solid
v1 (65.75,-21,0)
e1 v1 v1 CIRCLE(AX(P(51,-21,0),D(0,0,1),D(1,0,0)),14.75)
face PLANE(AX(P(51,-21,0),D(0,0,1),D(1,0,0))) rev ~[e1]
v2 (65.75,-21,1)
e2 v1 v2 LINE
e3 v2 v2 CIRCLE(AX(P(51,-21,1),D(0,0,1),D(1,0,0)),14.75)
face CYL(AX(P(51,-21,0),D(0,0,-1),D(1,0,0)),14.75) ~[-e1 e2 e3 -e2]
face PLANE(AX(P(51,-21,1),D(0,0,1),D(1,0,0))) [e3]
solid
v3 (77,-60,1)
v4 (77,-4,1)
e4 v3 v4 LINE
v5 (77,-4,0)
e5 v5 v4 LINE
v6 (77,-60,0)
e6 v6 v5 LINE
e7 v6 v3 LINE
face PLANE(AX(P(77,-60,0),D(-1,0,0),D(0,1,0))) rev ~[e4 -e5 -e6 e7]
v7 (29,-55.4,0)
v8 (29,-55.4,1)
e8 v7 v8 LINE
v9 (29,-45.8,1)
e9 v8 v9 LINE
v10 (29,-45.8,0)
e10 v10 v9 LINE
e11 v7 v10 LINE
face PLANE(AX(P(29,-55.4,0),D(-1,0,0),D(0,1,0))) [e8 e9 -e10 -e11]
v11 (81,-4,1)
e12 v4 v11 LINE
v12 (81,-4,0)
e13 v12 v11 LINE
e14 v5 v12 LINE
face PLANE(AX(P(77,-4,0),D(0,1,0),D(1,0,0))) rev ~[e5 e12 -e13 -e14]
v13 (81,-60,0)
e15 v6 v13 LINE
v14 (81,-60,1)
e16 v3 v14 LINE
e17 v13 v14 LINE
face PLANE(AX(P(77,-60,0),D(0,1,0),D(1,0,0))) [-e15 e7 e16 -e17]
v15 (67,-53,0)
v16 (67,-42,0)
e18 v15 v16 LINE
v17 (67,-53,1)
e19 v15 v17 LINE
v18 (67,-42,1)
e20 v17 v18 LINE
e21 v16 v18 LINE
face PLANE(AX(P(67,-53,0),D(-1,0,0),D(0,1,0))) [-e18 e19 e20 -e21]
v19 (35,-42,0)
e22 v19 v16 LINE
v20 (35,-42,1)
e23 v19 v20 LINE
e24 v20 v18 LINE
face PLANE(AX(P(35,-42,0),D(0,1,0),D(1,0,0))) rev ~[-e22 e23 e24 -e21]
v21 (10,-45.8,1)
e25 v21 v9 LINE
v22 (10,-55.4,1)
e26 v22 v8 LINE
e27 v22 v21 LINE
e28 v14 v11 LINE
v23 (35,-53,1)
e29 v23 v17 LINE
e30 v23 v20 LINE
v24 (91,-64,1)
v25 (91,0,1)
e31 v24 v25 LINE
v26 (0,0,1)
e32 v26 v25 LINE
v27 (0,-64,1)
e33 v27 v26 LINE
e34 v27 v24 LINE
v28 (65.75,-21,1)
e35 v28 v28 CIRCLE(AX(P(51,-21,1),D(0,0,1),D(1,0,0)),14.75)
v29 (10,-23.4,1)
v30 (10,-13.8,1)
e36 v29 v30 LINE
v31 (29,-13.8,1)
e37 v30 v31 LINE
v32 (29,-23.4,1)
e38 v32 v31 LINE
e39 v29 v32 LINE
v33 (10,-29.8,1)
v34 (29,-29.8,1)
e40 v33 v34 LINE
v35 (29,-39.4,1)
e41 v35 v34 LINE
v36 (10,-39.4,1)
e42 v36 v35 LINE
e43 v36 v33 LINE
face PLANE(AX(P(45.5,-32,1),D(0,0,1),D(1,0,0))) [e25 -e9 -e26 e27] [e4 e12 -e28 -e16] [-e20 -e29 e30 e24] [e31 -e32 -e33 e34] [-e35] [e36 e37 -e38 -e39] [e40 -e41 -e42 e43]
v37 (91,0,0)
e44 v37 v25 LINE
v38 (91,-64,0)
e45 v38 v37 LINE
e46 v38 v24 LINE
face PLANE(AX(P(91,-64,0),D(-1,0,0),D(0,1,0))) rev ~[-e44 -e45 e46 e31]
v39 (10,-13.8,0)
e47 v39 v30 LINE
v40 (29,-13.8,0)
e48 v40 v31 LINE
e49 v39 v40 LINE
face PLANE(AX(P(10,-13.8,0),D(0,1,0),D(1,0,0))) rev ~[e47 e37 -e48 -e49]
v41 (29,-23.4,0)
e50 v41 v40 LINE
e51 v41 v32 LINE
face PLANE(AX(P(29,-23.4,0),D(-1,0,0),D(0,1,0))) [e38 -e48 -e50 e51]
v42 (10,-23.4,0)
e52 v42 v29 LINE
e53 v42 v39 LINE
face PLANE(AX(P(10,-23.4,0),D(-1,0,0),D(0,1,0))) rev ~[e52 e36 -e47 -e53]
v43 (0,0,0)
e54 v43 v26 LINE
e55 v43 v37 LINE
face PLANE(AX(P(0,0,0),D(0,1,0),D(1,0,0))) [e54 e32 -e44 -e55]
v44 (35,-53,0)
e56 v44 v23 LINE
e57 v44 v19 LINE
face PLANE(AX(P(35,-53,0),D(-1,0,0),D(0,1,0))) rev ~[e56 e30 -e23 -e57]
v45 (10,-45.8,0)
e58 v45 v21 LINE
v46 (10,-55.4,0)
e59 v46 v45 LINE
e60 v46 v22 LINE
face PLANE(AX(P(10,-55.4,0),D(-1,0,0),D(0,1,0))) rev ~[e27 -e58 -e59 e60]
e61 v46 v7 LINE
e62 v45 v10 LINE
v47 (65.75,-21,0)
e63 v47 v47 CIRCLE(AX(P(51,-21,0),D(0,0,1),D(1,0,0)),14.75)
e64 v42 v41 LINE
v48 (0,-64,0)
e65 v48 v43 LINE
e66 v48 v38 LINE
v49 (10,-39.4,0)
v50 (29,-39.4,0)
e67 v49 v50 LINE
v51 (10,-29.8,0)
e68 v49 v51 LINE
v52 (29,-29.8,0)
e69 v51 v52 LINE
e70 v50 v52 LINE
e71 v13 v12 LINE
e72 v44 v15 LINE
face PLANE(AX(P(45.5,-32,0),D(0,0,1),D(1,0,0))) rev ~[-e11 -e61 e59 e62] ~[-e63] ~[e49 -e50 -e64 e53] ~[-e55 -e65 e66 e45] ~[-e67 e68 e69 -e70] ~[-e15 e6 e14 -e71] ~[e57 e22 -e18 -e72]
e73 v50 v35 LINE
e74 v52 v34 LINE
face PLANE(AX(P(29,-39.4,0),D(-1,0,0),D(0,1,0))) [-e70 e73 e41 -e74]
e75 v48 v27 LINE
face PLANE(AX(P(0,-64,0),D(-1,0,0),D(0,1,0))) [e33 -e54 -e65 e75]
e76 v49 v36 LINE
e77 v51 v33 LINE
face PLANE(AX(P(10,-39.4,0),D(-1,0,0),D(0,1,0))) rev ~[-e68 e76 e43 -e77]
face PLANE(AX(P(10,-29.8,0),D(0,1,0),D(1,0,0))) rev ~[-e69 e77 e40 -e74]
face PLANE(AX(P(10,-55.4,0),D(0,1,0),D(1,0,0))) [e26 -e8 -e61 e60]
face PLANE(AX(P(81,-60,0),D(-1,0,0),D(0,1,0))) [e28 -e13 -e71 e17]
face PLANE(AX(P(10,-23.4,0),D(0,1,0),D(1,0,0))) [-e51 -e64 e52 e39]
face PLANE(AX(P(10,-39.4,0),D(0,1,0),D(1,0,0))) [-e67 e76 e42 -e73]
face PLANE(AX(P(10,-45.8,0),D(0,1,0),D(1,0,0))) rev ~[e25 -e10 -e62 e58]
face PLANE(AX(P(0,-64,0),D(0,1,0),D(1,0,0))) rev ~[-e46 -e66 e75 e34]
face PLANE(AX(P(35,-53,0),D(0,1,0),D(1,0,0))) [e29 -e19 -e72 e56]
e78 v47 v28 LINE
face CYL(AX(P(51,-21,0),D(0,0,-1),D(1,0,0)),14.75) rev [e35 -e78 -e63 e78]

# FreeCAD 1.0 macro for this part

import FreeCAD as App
import Part
import Sketcher

V = App.Vector
Q = App.Units.Quantity


def add_polygon(sketch, points):
    """Adds a closed chain of lines whose ends are joined by coincident constraints."""
    first, n = sketch.GeometryCount, len(points)
    for a, b in zip(points, points[1:] + points[:1]):
        sketch.addGeometry(Part.LineSegment(App.Vector(*a, 0), App.Vector(*b, 0)), False)
    for i in range(n):
        sketch.addConstraint(Sketcher.Constraint("Coincident", first + i, 2, first + (i + 1) % n, 1))

doc = App.newDocument("Part")
body = doc.addObject("PartDesign::Body", "Body")

# Sketch on XY plane
sketch1 = body.newObject("Sketcher::SketchObject", "Sketch")
sketch1.AttachmentSupport = (doc.getObject("XY_Plane"), [""])
sketch1.MapMode = "FlatFace"
sketch1.addGeometry(Part.Circle(V(51, -21, 0), V(0, 0, 1), 14.75), False)
sketch1.addConstraint([
    Sketcher.Constraint("Diameter", 0, Q("29.5 mm")),
    Sketcher.Constraint("DistanceX", -1, 1, 0, 3, Q("51 mm")),
    Sketcher.Constraint("DistanceY", 0, 3, -1, 1, Q("21 mm")),
])
pad1 = body.newObject("PartDesign::Pad", "Pad")
pad1.Profile = sketch1
pad1.Length = 1
body2 = doc.addObject("PartDesign::Body", "Body001")

# Sketch on XY plane
sketch2 = body2.newObject("Sketcher::SketchObject", "Sketch001")
sketch2.AttachmentSupport = (doc.getObject("XY_Plane001"), [""])
sketch2.MapMode = "FlatFace"
add_polygon(sketch2, [(0, 0), (0, -64), (91, -64), (91, 0)])  # lines 0-3
add_polygon(sketch2, [(29, -55.4), (10, -55.4), (10, -45.8), (29, -45.8)])  # lines 4-7
add_polygon(sketch2, [(29, -39.4), (10, -39.4), (10, -29.8), (29, -29.8)])  # lines 8-11
add_polygon(sketch2, [(67, -53), (35, -53), (35, -42), (67, -42)])  # lines 12-15
add_polygon(sketch2, [(29, -23.4), (10, -23.4), (10, -13.8), (29, -13.8)])  # lines 16-19
sketch2.addGeometry(Part.Circle(V(51, -21, 0), V(0, 0, 1), 14.75), False)  # 20
add_polygon(sketch2, [(81, -60), (77, -60), (77, -4), (81, -4)])  # lines 21-24
sketch2.addConstraint([
    Sketcher.Constraint("Vertical", 0),
    Sketcher.Constraint("Horizontal", 1),
    Sketcher.Constraint("Vertical", 2),
    Sketcher.Constraint("Horizontal", 3),
    Sketcher.Constraint("Horizontal", 4),
    Sketcher.Constraint("Vertical", 5),
    Sketcher.Constraint("Horizontal", 6),
    Sketcher.Constraint("Vertical", 7),
    Sketcher.Constraint("Horizontal", 8),
    Sketcher.Constraint("Vertical", 9),
    Sketcher.Constraint("Horizontal", 10),
    Sketcher.Constraint("Vertical", 11),
    Sketcher.Constraint("Horizontal", 12),
    Sketcher.Constraint("Vertical", 13),
    Sketcher.Constraint("Horizontal", 14),
    Sketcher.Constraint("Vertical", 15),
    Sketcher.Constraint("Horizontal", 16),
    Sketcher.Constraint("Vertical", 17),
    Sketcher.Constraint("Horizontal", 18),
    Sketcher.Constraint("Vertical", 19),
    Sketcher.Constraint("Horizontal", 21),
    Sketcher.Constraint("Vertical", 22),
    Sketcher.Constraint("Horizontal", 23),
    Sketcher.Constraint("Vertical", 24),
    Sketcher.Constraint("Coincident", 3, 2, -1, 1),
    Sketcher.Constraint("Vertical", 5, 2, 8, 2),
    Sketcher.Constraint("Vertical", 7, 2, 10, 2),
    Sketcher.Constraint("Vertical", 9, 2, 16, 2),
    Sketcher.Constraint("Vertical", 11, 2, 18, 2),
    Sketcher.Constraint("Equal", 7, 9),
    Sketcher.Constraint("Equal", 11, 17),
    Sketcher.Constraint("Diameter", 20, Q("29.5 mm")),
    Sketcher.Constraint("DistanceX", 1, 1, 1, 2, Q("91 mm")),
    Sketcher.Constraint("DistanceX", 4, 2, 4, 1, Q("19 mm")),
    Sketcher.Constraint("DistanceX", 12, 2, 12, 1, Q("32 mm")),
    Sketcher.Constraint("DistanceX", 21, 2, 21, 1, Q("4 mm")),
    Sketcher.Constraint("DistanceY", 0, 2, 0, 1, Q("64 mm")),
    Sketcher.Constraint("DistanceY", 13, 1, 13, 2, Q("11 mm")),
    Sketcher.Constraint("DistanceY", 22, 1, 22, 2, Q("56 mm")),
    Sketcher.Constraint("DistanceY", 5, 1, 5, 2, Q("9.6 mm")),
    Sketcher.Constraint("DistanceX", -1, 1, 20, 3, Q("51 mm")),
    Sketcher.Constraint("DistanceY", 20, 3, -1, 1, Q("21 mm")),
    Sketcher.Constraint("DistanceX", -1, 1, 4, 2, Q("10 mm")),
    Sketcher.Constraint("DistanceX", -1, 1, 12, 2, Q("35 mm")),
    Sketcher.Constraint("DistanceY", 12, 2, -1, 1, Q("53 mm")),
    Sketcher.Constraint("DistanceX", -1, 1, 21, 2, Q("77 mm")),
    Sketcher.Constraint("DistanceY", 21, 2, -1, 1, Q("60 mm")),
    Sketcher.Constraint("DistanceY", 4, 2, 8, 2, Q("16 mm")),
    Sketcher.Constraint("DistanceY", 8, 2, 16, 2, Q("16 mm")),
    Sketcher.Constraint("DistanceY", 4, 2, -1, 1, Q("55.4 mm")),
])
pad2 = body2.newObject("PartDesign::Pad", "Pad001")
pad2.Profile = sketch2
pad2.Length = 1

doc.recompute()
